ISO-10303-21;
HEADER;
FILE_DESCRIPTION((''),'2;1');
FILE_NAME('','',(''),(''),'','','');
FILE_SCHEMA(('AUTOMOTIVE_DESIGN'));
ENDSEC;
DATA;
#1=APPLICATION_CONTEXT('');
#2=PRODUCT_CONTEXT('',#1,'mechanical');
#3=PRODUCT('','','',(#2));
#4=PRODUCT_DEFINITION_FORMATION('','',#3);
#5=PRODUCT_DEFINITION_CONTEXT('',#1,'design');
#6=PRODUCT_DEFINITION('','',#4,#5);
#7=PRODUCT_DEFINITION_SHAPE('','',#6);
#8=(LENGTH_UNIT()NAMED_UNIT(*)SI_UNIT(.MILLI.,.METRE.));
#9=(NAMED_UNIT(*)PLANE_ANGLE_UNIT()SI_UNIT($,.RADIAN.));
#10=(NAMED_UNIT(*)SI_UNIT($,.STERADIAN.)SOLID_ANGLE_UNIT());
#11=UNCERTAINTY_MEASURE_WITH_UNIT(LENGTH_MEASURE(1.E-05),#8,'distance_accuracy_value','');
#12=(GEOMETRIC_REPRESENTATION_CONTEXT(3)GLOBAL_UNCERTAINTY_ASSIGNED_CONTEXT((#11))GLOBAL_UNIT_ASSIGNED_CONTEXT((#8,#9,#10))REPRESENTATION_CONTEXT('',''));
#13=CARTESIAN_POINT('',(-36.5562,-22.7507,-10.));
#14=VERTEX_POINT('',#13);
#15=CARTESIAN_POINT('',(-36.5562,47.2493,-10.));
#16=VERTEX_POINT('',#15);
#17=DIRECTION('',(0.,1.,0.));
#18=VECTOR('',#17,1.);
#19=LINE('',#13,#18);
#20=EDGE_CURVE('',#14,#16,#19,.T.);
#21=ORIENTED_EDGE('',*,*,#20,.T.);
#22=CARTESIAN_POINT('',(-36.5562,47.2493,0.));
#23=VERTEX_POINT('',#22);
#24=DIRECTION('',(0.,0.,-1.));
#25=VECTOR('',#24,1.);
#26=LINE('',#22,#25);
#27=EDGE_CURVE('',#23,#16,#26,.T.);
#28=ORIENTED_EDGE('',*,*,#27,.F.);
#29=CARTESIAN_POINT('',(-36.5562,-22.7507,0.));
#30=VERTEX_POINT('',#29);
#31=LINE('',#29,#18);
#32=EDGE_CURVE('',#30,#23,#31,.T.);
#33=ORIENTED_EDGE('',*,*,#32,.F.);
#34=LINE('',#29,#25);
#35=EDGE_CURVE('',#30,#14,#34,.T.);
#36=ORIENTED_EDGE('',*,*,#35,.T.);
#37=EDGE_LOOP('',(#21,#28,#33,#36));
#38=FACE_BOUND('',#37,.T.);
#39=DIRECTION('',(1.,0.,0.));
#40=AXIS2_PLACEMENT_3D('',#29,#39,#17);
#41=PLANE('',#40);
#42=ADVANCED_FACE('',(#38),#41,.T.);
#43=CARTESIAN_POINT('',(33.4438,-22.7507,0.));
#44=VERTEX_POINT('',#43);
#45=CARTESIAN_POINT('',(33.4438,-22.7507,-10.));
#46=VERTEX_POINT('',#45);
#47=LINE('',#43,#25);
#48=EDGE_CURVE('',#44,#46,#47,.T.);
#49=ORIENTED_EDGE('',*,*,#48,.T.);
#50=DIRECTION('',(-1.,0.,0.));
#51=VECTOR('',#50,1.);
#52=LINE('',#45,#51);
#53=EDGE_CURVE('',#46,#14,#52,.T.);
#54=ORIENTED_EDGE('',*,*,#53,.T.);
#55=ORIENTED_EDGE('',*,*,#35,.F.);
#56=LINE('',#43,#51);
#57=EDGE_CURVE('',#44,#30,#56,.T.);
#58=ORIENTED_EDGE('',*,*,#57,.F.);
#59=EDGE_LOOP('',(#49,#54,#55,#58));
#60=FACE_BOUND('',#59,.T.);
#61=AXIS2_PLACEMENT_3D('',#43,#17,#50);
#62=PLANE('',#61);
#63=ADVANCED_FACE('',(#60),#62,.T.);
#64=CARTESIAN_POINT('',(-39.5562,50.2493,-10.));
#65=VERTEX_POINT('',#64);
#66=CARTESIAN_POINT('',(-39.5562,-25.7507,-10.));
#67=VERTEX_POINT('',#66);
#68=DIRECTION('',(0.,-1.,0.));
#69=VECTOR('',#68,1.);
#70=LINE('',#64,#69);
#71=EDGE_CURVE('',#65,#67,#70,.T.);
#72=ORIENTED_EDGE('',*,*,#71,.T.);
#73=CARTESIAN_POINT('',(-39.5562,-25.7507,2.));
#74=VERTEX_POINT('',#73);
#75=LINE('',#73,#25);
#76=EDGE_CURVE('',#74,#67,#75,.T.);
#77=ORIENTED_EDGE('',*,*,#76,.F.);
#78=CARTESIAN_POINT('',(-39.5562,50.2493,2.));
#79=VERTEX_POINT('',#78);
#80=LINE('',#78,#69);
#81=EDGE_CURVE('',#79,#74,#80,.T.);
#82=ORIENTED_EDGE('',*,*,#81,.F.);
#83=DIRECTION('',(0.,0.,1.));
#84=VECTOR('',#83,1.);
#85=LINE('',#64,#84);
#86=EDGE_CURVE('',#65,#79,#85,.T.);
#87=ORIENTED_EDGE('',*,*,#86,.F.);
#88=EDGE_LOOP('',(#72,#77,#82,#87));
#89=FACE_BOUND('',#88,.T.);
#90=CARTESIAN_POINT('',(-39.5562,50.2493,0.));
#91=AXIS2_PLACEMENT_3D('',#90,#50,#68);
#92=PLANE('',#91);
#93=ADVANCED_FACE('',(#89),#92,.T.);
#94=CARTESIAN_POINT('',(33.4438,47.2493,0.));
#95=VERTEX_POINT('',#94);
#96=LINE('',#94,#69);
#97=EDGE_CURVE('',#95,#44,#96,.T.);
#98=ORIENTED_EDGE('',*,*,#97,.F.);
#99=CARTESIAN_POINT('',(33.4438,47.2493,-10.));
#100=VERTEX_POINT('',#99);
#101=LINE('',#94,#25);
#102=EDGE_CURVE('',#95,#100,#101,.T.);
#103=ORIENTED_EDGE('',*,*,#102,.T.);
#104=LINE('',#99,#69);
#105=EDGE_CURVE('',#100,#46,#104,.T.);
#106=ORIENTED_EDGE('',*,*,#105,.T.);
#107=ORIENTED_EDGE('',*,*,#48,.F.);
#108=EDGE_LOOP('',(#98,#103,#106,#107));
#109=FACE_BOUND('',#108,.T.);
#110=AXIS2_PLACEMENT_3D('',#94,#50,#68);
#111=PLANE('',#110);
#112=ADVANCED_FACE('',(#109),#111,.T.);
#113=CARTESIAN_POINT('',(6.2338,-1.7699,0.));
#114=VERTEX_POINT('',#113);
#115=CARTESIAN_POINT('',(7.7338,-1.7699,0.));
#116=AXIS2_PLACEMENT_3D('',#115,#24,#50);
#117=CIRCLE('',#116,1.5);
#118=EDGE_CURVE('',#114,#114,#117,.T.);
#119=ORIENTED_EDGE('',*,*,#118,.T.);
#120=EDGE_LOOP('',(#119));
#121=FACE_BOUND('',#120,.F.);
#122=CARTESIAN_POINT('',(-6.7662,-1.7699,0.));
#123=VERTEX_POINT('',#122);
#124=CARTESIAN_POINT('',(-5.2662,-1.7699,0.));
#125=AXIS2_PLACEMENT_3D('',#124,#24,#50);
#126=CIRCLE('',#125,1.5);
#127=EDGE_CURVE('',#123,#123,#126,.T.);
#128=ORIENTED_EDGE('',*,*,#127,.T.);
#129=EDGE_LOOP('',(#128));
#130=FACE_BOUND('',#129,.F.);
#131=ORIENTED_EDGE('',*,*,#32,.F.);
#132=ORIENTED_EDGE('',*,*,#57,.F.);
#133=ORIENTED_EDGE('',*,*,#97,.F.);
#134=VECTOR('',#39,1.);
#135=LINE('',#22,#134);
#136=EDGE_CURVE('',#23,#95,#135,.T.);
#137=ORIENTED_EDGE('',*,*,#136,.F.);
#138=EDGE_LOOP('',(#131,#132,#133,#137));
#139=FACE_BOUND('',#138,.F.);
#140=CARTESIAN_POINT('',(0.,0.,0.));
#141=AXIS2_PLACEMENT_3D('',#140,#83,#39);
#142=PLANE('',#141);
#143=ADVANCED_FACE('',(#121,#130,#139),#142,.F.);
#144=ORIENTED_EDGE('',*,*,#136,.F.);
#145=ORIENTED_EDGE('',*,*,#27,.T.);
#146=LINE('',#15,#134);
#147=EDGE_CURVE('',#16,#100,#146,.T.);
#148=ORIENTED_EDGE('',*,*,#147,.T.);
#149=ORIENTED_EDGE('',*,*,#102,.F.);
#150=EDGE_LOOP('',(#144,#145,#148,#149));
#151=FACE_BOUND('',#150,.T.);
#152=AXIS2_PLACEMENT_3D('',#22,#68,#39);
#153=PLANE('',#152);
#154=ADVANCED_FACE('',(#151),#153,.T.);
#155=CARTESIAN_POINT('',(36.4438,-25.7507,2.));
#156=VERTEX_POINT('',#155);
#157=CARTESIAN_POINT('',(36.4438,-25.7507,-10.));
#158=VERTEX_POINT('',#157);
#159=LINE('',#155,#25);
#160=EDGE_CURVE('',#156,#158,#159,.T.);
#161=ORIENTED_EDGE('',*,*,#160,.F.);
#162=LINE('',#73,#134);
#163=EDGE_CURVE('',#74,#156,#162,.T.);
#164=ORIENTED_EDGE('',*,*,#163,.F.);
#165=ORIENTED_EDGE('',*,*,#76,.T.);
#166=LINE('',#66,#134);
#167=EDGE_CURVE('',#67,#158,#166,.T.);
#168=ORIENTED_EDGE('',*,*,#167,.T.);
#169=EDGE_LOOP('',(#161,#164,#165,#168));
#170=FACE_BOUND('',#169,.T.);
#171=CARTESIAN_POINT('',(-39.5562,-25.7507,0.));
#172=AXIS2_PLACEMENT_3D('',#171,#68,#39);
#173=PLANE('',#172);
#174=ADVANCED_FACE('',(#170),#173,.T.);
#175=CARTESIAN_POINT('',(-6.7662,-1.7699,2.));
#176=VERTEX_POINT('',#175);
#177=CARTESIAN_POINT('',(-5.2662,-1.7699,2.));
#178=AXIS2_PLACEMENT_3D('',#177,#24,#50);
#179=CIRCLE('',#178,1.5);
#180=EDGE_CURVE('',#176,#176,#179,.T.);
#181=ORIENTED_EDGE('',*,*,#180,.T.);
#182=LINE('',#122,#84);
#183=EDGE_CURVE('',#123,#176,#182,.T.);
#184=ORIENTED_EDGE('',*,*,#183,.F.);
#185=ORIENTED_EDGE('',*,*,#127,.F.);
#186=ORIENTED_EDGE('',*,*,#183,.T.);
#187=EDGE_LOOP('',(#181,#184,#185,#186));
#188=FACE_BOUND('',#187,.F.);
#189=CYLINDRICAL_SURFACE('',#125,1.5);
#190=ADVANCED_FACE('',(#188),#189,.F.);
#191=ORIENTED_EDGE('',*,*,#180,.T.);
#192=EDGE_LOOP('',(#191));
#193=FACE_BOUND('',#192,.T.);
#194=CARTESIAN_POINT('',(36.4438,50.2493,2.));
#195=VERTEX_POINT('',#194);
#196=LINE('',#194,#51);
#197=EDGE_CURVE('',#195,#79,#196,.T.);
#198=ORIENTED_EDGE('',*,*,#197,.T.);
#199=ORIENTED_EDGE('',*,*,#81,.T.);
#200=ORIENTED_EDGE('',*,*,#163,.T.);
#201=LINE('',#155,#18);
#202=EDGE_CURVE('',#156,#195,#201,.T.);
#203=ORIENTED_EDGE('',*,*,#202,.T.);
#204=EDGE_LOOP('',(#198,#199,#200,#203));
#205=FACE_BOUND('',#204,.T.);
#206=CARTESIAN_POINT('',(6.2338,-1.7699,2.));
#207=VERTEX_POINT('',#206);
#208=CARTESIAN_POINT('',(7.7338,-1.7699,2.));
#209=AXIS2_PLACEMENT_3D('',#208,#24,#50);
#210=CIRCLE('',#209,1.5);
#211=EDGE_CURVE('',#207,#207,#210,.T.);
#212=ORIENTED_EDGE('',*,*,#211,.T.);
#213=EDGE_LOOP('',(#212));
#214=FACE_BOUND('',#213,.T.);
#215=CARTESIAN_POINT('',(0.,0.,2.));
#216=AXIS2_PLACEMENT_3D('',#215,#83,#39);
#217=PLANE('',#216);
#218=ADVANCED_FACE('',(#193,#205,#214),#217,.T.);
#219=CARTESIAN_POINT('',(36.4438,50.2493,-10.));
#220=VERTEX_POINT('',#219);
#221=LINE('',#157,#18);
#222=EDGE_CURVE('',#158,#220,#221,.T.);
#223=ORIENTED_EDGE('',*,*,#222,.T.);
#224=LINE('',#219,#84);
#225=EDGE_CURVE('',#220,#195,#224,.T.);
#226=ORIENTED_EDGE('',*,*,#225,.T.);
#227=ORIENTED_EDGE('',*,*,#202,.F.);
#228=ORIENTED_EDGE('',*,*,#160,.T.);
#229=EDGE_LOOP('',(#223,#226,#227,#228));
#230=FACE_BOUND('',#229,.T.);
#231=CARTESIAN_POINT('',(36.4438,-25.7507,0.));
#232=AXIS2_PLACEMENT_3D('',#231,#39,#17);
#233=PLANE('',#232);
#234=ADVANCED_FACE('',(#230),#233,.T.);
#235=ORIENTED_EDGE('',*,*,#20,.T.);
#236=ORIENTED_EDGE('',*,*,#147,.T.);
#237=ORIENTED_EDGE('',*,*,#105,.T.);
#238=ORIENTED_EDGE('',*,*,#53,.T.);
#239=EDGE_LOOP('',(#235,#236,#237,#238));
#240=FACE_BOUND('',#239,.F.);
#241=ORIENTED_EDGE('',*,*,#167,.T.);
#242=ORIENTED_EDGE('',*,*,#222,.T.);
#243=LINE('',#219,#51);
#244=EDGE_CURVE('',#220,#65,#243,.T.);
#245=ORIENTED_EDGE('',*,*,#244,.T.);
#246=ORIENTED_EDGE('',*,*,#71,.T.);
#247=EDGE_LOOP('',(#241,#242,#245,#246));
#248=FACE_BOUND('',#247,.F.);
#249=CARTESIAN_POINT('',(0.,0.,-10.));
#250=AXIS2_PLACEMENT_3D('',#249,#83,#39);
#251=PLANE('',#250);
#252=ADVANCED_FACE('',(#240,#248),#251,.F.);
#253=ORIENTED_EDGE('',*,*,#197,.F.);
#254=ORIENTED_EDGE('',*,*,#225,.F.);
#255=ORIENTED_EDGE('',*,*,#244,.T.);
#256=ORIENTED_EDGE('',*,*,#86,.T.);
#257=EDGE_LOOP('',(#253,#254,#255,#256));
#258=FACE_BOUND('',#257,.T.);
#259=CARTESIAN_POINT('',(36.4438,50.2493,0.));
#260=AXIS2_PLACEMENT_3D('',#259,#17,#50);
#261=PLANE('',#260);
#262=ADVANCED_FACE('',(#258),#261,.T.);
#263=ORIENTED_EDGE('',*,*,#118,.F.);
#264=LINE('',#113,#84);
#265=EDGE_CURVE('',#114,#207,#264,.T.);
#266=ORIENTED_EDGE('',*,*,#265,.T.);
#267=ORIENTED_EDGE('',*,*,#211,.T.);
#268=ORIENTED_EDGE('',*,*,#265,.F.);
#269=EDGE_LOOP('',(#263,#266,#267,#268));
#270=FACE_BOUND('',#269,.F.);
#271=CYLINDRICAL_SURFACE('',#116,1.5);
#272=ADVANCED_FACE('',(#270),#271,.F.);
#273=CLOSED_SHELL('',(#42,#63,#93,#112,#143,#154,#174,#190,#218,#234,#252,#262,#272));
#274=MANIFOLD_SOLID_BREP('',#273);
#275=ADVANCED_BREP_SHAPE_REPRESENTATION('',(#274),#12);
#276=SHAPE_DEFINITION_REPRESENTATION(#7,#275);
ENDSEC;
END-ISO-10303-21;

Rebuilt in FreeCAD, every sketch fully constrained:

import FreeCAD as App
import Part
import Sketcher

V = App.Vector
Q = App.Units.Quantity


def add_polygon(sketch, points):
    """Adds a closed chain of lines whose ends are joined by coincident constraints."""
    first, n = sketch.GeometryCount, len(points)
    for a, b in zip(points, points[1:] + points[:1]):
        sketch.addGeometry(Part.LineSegment(App.Vector(*a, 0), App.Vector(*b, 0)), False)
    for i in range(n):
        sketch.addConstraint(Sketcher.Constraint("Coincident", first + i, 2, first + (i + 1) % n, 1))

doc = App.newDocument("Part")
body = doc.addObject("PartDesign::Body", "Body")

# Sketch on XY plane
sketch1 = body.newObject("Sketcher::SketchObject", "Sketch")
sketch1.AttachmentSupport = (doc.getObject("XY_Plane"), [""])
sketch1.MapMode = "FlatFace"
add_polygon(sketch1, [(36, -26), (36, 50), (-40, 50), (-40, -26)])  # lines 0-3
add_polygon(sketch1, [(33, 47), (33, -23), (-37, -23), (-37, 47)])  # lines 4-7
sketch1.addConstraint([
    Sketcher.Constraint("Vertical", 0),
    Sketcher.Constraint("Horizontal", 1),
    Sketcher.Constraint("Vertical", 2),
    Sketcher.Constraint("Horizontal", 3),
    Sketcher.Constraint("Vertical", 4),
    Sketcher.Constraint("Horizontal", 5),
    Sketcher.Constraint("Vertical", 6),
    Sketcher.Constraint("Horizontal", 7),
    Sketcher.Constraint("Equal", 3, 0),
    Sketcher.Constraint("Equal", 7, 4),
    Sketcher.Constraint("DistanceX", 1, 2, 1, 1, Q("76 mm")),
    Sketcher.Constraint("DistanceX", 5, 2, 5, 1, Q("70 mm")),
    Sketcher.Constraint("DistanceX", 4, 2, 3, 2, Q("3 mm")),
    Sketcher.Constraint("DistanceY", 3, 2, 4, 2, Q("3 mm")),
    Sketcher.Constraint("DistanceX", -1, 1, 0, 2, Q("36.4438 mm")),
    Sketcher.Constraint("DistanceY", -1, 1, 0, 2, Q("50.2493 mm")),
])
pad1 = body.newObject("PartDesign::Pad", "Pad")
pad1.Profile = sketch1
pad1.Length = 10
pad1.Reversed = True

# Sketch on XY plane
sketch2 = body.newObject("Sketcher::SketchObject", "Sketch001")
sketch2.AttachmentSupport = (doc.getObject("XY_Plane"), [""])
sketch2.MapMode = "FlatFace"
add_polygon(sketch2, [(36.4, 50.2), (-39.6, 50.2), (-39.6, -25.8), (36.4, -25.8)])  # lines 0-3
sketch2.addGeometry(Part.Circle(V(21.3, 12.2, 0), V(0, 0, 1), 3.7), False)  # 4
sketch2.addGeometry(Part.Circle(V(-23.5, 12.2, 0), V(0, 0, 1), 3.7), False)  # 5
sketch2.addGeometry(Part.Circle(V(-1.1, 12.2, 0), V(0, 0, 1), 5), False)  # 6
sketch2.addConstraint([
    Sketcher.Constraint("Horizontal", 0),
    Sketcher.Constraint("Vertical", 1),
    Sketcher.Constraint("Horizontal", 2),
    Sketcher.Constraint("Vertical", 3),
    Sketcher.Constraint("Equal", 4, 5),
    Sketcher.Constraint("Horizontal", 4, 3, 5, 3),
    Sketcher.Constraint("Horizontal", 5, 3, 6, 3),
    Sketcher.Constraint("Equal", 2, 1),
    Sketcher.Constraint("Diameter", 6, Q("10 mm")),
    Sketcher.Constraint("Diameter", 4, Q("7.4 mm")),
    Sketcher.Constraint("DistanceX", 0, 2, 0, 1, Q("76 mm")),
    Sketcher.Constraint("DistanceY", 5, 3, 0, 2, Q("38 mm")),
    Sketcher.Constraint("DistanceX", 5, 3, 4, 3, Q("44.8 mm")),
    Sketcher.Constraint("DistanceX", 5, 3, 6, 3, Q("22.4 mm")),
    Sketcher.Constraint("DistanceX", 0, 2, 5, 3, Q("16.1 mm")),
    Sketcher.Constraint("DistanceX", -1, 1, 4, 3, Q("21.3438 mm")),
    Sketcher.Constraint("DistanceY", -1, 1, 4, 3, Q("12.2493 mm")),
])
pad2 = body.newObject("PartDesign::Pad", "Pad001")
pad2.Profile = sketch2
pad2.Length = 2

# Sketch on XY plane
sketch3 = body.newObject("Sketcher::SketchObject", "Sketch002")
sketch3.AttachmentSupport = (doc.getObject("XY_Plane"), [""])
sketch3.MapMode = "FlatFace"
sketch3.addGeometry([
    Part.Circle(V(-1.1, 12.2, 0), V(0, 0, 1), 5),
    Part.Circle(V(21.3, 12.2, 0), V(0, 0, 1), 3.7),
    Part.Circle(V(-23.5, 12.2, 0), V(0, 0, 1), 3.7),
], False)
sketch3.addConstraint([
    Sketcher.Constraint("Equal", 1, 2),
    Sketcher.Constraint("Horizontal", 0, 3, 1, 3),
    Sketcher.Constraint("Horizontal", 1, 3, 2, 3),
    Sketcher.Constraint("Diameter", 0, Q("10 mm")),
    Sketcher.Constraint("Diameter", 1, Q("7.4 mm")),
    Sketcher.Constraint("DistanceX", 0, 3, 1, 3, Q("22.4 mm")),
    Sketcher.Constraint("DistanceX", 2, 3, 0, 3, Q("22.4 mm")),
    Sketcher.Constraint("DistanceX", 0, 3, -1, 1, Q("1.0562 mm")),
    Sketcher.Constraint("DistanceY", -1, 1, 0, 3, Q("12.2493 mm")),
])
pad3 = body.newObject("PartDesign::Pad", "Pad002")
pad3.Profile = sketch3
pad3.Length = 2

# Sketch on XY plane
sketch4 = body.newObject("Sketcher::SketchObject", "Sketch003")
sketch4.AttachmentSupport = (doc.getObject("XY_Plane"), [""])
sketch4.MapMode = "FlatFace"
sketch4.addGeometry([
    Part.Circle(V(-5.3, -1.8, 0), V(0, 0, 1), 1.5),
    Part.Circle(V(7.7, -1.8, 0), V(0, 0, 1), 1.5),
], False)
sketch4.addConstraint([
    Sketcher.Constraint("Equal", 0, 1),
    Sketcher.Constraint("Horizontal", 0, 3, 1, 3),
    Sketcher.Constraint("Diameter", 0, Q("3 mm")),
    Sketcher.Constraint("DistanceX", 0, 3, 1, 3, Q("13 mm")),
    Sketcher.Constraint("DistanceY", 0, 3, -1, 1, Q("1.77 mm")),
    Sketcher.Constraint("DistanceX", 0, 3, -1, 1, Q("5.2662 mm")),
])
pocket1 = body.newObject("PartDesign::Pocket", "Pocket")
pocket1.Profile = sketch4
pocket1.Length = 2
pocket1.Reversed = True

doc.recompute()
